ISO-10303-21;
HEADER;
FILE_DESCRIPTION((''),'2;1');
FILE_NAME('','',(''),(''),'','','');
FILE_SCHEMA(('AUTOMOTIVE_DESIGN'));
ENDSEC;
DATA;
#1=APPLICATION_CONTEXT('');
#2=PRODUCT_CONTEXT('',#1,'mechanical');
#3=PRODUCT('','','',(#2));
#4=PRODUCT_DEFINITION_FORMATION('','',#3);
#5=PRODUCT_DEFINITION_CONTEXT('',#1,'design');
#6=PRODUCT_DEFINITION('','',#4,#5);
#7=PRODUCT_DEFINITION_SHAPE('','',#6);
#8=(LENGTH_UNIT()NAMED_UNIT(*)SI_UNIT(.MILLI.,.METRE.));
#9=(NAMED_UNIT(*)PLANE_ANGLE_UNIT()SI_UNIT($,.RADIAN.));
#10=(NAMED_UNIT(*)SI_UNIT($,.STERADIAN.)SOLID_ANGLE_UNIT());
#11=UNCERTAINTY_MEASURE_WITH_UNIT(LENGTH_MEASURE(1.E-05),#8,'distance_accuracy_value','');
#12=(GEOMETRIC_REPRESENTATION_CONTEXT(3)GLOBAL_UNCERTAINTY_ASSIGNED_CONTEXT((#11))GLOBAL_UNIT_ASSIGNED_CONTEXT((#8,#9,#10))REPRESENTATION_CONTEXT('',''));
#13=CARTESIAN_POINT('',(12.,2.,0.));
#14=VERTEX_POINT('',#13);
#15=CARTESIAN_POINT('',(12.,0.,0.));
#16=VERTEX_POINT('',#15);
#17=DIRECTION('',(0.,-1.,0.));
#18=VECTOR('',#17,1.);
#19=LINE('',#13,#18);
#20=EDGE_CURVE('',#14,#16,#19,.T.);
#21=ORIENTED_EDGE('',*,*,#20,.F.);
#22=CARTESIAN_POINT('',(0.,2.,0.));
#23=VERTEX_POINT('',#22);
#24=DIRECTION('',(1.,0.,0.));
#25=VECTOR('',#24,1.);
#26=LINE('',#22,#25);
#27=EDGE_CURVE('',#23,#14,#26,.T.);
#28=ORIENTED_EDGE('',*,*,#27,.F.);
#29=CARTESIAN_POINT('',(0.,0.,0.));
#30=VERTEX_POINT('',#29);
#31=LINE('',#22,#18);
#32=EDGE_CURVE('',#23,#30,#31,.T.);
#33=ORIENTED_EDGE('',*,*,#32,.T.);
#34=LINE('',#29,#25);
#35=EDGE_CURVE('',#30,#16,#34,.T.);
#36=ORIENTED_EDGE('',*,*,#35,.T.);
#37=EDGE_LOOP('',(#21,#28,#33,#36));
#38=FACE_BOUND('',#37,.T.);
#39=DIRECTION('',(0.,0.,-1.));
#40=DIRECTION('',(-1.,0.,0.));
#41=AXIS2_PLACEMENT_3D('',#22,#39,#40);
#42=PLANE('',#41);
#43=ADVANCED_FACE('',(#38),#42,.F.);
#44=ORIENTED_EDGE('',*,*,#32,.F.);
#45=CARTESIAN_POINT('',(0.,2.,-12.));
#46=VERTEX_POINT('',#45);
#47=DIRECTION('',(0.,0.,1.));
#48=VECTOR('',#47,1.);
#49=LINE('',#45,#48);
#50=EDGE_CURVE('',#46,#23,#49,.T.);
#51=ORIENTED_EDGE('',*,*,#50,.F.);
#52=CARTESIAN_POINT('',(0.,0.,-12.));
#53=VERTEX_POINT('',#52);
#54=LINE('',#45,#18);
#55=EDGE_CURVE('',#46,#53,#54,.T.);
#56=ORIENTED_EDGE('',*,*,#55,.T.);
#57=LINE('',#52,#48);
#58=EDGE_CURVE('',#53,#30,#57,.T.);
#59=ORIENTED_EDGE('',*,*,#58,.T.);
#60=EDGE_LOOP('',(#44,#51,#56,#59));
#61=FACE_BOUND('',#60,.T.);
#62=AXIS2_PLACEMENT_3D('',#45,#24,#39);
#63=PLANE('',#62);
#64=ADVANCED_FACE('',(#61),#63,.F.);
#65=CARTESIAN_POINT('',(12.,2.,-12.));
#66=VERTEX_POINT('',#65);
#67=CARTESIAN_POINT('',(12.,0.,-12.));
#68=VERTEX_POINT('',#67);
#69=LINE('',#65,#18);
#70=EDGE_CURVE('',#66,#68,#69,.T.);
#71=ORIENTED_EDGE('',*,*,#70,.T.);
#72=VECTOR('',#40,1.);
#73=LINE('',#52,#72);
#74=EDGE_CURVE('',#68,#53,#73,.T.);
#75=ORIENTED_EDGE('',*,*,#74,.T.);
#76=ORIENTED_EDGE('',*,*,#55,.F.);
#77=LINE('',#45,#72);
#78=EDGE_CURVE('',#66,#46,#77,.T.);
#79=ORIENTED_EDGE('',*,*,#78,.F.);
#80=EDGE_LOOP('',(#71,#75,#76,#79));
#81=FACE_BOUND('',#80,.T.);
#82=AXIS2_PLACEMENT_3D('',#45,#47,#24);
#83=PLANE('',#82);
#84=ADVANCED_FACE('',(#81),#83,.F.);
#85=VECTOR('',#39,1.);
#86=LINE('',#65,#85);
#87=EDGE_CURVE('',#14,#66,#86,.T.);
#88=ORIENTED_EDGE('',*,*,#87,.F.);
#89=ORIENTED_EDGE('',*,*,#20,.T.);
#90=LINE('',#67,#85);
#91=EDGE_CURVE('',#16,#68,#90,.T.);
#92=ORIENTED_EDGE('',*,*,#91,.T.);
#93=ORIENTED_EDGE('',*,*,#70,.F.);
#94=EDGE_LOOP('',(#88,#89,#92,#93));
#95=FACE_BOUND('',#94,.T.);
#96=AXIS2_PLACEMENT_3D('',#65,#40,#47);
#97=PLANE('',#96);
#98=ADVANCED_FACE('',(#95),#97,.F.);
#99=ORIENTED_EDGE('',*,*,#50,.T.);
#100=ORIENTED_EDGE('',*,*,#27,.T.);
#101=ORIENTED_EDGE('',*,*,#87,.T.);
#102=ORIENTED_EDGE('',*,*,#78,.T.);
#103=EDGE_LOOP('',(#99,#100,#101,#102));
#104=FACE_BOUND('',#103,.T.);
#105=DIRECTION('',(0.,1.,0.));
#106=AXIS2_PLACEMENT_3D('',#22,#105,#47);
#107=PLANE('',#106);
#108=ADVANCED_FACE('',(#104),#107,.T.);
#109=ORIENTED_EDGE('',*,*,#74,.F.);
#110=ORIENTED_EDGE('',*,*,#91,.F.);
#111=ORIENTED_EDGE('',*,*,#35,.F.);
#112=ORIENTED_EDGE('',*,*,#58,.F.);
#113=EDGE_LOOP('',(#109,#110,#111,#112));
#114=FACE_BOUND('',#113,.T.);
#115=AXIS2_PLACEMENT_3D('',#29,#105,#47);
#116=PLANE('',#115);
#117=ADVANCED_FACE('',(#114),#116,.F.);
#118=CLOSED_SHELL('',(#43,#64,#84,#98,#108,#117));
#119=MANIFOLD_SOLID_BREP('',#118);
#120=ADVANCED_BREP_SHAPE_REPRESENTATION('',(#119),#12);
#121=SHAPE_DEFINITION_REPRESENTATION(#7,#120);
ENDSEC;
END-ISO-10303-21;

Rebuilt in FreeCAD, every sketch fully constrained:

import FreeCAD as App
import Part
import Sketcher

V = App.Vector


def add_polygon(sketch, points):
    """Adds a closed chain of lines whose ends are joined by coincident constraints."""
    first, n = sketch.GeometryCount, len(points)
    for a, b in zip(points, points[1:] + points[:1]):
        sketch.addGeometry(Part.LineSegment(App.Vector(*a, 0), App.Vector(*b, 0)), False)
    for i in range(n):
        sketch.addConstraint(Sketcher.Constraint("Coincident", first + i, 2, first + (i + 1) % n, 1))

doc = App.newDocument("Part")
body = doc.addObject("PartDesign::Body", "Body")

# Sketch on XZ plane
sketch1 = body.newObject("Sketcher::SketchObject", "Sketch")
sketch1.AttachmentSupport = (doc.getObject("XZ_Plane"), [""])
sketch1.MapMode = "FlatFace"
add_polygon(sketch1, [(0, -12), (0, 0), (12, 0), (12, -12)])  # lines 0-3
sketch1.addConstraint(Sketcher.Constraint("Vertical", 0))
sketch1.addConstraint(Sketcher.Constraint("Horizontal", 1))
sketch1.addConstraint(Sketcher.Constraint("Vertical", 2))
sketch1.addConstraint(Sketcher.Constraint("Horizontal", 3))
sketch1.addConstraint(Sketcher.Constraint("Coincident", 0, 2, -1, 1))
sketch1.addConstraint(Sketcher.Constraint("Equal", 3, 0))
sketch1.addConstraint(Sketcher.Constraint("DistanceX", 1, 1, 1, 2, 12.0))
pad1 = body.newObject("PartDesign::Pad", "Pad")
pad1.Profile = sketch1
pad1.Length = 2
pad1.Reversed = True

doc.recompute()
